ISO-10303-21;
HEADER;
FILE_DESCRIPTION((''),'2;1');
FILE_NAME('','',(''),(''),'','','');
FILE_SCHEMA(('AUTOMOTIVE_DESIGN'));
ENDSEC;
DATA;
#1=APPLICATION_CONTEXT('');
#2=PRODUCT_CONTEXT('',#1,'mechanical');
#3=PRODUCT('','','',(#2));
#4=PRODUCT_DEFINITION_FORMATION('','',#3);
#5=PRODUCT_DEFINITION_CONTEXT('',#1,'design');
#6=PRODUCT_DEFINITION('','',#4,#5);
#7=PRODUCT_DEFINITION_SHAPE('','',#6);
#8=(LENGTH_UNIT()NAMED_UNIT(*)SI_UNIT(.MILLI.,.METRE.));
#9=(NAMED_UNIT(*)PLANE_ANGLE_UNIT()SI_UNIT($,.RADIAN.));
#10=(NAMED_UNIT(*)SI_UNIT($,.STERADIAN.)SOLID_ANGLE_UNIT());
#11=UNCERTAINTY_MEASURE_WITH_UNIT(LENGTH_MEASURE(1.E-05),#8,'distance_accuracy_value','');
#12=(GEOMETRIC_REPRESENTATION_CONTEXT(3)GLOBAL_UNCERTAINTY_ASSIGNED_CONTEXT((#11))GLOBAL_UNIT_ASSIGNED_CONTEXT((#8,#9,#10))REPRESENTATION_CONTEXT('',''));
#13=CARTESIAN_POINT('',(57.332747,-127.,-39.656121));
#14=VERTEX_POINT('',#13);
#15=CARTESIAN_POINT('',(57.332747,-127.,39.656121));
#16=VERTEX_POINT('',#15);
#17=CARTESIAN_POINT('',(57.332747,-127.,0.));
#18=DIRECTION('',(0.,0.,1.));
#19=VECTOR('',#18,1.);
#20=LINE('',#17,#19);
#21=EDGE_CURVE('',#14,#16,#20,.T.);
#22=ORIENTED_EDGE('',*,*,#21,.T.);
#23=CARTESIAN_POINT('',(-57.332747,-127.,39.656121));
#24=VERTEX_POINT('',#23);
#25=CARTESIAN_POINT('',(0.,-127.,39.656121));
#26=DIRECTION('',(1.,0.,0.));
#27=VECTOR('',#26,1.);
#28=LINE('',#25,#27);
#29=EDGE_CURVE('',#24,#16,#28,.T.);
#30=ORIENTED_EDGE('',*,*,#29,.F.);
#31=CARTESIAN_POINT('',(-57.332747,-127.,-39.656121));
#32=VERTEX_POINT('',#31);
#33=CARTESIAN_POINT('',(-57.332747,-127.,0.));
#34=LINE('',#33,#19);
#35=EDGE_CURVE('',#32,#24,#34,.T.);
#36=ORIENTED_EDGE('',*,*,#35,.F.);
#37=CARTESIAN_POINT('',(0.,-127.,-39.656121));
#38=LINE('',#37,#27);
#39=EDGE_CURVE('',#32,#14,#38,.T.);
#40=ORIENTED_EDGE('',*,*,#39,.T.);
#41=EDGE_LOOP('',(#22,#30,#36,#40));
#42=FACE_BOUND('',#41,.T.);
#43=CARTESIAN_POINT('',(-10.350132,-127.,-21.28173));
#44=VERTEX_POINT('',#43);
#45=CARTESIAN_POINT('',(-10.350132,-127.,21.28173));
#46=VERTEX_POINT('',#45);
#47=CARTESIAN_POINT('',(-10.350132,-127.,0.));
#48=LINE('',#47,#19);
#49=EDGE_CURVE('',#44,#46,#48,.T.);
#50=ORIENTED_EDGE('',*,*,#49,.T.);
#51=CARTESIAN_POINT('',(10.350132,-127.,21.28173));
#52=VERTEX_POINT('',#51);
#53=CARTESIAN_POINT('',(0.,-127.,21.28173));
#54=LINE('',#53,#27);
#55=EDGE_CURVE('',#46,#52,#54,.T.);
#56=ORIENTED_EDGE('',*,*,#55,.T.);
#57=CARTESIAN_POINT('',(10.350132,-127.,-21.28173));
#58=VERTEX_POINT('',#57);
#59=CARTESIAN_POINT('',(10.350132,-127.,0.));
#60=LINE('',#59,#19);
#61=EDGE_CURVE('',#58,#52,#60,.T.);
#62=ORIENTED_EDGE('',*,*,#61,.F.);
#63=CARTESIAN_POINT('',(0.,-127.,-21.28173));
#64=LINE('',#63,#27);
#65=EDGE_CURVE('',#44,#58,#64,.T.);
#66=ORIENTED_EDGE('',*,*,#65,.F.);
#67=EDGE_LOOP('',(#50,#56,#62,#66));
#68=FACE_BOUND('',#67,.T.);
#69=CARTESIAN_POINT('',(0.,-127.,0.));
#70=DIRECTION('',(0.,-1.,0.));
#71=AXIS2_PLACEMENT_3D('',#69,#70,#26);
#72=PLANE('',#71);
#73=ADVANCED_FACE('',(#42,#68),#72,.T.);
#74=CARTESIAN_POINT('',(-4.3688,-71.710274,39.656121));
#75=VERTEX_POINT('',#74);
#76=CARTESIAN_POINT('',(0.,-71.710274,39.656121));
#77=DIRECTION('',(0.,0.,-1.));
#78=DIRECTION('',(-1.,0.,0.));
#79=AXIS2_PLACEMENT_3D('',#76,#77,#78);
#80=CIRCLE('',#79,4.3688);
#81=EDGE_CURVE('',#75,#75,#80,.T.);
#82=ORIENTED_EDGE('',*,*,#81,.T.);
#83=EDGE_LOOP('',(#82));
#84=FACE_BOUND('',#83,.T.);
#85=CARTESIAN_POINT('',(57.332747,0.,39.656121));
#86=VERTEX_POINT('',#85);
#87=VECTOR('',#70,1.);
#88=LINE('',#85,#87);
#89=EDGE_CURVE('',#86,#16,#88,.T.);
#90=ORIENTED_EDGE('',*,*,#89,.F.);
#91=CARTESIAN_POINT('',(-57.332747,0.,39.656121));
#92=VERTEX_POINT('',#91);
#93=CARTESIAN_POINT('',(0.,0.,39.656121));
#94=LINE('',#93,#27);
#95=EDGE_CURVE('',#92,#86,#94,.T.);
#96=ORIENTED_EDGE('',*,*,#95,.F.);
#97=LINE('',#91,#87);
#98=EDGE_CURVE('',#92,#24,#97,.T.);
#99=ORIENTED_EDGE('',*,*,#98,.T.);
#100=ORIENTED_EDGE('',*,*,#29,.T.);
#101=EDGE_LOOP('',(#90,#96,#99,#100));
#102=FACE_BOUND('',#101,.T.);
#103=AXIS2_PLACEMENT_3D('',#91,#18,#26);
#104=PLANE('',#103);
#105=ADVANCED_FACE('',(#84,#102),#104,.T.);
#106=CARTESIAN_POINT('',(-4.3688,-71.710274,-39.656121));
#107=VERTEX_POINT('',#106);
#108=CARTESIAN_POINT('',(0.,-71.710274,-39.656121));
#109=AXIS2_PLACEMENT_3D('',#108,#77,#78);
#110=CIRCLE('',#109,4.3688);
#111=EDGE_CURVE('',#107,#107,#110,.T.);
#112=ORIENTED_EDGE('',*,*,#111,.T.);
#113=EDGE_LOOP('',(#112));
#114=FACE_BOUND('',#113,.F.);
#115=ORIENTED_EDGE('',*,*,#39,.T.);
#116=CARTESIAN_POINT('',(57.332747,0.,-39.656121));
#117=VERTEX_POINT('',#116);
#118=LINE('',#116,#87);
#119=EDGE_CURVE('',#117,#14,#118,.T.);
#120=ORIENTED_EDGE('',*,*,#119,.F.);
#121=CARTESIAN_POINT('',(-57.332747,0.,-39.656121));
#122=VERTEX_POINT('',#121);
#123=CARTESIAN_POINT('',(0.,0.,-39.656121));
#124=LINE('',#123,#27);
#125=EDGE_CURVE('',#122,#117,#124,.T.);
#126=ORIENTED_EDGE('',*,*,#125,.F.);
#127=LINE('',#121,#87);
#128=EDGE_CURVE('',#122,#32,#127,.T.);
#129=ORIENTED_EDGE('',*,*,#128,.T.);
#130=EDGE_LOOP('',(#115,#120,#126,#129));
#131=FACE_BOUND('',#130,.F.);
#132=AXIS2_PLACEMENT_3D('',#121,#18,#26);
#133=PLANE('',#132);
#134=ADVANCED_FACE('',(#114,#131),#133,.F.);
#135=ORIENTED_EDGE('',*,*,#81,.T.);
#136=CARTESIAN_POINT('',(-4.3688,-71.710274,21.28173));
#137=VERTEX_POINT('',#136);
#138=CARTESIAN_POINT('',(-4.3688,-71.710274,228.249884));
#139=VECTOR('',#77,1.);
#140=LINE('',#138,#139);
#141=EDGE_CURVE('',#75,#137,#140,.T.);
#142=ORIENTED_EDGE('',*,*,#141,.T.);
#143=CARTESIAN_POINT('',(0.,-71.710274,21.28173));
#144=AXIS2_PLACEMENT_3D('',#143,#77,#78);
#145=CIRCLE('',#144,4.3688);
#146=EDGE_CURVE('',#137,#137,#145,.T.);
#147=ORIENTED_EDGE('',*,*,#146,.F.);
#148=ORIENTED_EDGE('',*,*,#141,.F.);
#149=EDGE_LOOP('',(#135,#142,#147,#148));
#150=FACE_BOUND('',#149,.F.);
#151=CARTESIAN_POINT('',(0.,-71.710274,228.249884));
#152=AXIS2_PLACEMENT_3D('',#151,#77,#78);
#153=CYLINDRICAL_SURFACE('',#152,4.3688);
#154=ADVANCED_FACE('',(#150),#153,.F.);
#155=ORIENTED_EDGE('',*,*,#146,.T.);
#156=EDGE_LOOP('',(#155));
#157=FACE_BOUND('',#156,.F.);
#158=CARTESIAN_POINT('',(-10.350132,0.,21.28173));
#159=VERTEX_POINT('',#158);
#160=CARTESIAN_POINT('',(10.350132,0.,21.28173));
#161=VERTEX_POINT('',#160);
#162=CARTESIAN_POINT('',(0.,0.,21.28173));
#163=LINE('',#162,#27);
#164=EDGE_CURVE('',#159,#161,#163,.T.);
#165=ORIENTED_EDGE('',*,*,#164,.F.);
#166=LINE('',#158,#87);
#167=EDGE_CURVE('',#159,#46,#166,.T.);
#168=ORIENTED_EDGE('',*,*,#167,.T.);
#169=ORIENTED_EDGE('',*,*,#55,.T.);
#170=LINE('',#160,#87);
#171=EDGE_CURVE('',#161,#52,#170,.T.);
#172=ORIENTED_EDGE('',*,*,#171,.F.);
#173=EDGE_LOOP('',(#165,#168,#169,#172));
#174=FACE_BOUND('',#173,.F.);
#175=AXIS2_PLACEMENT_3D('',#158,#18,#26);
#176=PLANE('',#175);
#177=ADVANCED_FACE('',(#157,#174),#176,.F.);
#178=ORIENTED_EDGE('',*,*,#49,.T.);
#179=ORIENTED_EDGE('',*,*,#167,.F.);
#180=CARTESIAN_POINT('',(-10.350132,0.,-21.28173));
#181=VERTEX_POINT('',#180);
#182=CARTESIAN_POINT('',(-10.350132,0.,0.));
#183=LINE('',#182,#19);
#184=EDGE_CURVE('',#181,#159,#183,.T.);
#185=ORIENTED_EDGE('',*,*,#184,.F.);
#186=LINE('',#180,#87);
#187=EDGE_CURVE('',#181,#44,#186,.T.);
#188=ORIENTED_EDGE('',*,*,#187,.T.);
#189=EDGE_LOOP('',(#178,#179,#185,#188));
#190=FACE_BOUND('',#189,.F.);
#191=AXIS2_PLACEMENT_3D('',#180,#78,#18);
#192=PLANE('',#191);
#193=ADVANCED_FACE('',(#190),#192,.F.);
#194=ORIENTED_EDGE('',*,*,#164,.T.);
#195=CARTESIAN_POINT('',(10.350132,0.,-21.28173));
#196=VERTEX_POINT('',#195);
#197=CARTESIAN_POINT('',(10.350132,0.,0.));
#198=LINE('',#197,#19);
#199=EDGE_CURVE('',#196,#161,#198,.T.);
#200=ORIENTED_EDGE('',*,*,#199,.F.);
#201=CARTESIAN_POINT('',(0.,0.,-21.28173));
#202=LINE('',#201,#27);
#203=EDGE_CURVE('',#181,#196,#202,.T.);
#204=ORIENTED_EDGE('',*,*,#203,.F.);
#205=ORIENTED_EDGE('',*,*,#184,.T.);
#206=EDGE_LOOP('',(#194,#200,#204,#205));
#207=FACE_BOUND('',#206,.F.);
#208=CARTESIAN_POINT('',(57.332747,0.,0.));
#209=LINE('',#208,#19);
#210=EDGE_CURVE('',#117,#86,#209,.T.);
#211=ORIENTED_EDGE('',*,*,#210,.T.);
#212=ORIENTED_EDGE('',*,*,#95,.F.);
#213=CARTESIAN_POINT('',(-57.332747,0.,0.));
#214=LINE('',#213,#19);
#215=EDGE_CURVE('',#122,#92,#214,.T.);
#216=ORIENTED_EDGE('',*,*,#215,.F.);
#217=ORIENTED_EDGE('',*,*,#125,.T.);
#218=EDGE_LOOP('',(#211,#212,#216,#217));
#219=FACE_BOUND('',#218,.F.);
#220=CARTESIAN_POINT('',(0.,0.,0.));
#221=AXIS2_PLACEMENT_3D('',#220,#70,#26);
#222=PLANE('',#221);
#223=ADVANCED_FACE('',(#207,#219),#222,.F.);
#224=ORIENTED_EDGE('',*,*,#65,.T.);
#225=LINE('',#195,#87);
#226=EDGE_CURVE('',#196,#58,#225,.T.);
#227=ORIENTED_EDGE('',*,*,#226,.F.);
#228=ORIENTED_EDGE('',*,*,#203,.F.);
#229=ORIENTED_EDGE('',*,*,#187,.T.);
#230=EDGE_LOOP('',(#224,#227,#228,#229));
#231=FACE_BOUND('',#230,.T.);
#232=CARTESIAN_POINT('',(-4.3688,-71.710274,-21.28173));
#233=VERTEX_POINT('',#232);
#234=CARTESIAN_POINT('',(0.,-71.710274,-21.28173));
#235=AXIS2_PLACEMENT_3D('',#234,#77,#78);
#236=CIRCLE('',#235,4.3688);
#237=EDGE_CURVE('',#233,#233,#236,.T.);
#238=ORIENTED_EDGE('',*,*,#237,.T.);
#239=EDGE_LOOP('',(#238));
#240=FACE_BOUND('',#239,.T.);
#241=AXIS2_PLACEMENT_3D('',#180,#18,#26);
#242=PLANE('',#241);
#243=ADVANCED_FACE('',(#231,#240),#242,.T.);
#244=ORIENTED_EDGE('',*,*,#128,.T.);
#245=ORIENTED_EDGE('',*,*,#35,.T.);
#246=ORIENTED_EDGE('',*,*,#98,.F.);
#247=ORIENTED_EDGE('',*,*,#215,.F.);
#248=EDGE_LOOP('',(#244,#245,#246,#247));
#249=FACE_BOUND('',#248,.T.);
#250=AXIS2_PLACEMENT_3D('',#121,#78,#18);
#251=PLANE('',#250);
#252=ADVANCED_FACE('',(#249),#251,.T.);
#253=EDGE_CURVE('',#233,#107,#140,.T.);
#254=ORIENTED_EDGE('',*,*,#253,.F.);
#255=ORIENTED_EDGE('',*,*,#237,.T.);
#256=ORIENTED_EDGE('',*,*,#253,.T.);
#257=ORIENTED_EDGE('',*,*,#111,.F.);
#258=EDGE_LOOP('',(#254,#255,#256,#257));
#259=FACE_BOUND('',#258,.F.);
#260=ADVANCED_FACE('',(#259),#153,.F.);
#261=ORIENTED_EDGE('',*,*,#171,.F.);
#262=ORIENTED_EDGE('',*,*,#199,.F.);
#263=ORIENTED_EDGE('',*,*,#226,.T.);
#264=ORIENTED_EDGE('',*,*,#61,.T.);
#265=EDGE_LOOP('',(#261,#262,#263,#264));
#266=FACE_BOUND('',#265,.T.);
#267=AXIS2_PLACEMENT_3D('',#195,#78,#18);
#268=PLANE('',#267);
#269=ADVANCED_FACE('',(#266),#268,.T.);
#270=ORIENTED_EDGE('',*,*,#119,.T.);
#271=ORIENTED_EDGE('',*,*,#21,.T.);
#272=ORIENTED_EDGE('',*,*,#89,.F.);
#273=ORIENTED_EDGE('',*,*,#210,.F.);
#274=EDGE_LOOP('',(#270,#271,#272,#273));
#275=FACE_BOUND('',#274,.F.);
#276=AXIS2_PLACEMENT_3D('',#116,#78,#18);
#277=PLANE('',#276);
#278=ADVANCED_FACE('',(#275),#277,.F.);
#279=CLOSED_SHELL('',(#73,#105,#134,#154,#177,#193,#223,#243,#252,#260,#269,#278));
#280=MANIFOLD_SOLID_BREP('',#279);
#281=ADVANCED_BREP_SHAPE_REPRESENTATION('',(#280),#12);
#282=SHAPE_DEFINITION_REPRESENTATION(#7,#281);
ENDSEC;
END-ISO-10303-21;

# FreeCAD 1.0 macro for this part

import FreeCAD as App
import Part
import Sketcher

V = App.Vector
Q = App.Units.Quantity


def add_polygon(sketch, points):
    """Adds a closed chain of lines whose ends are joined by coincident constraints."""
    first, n = sketch.GeometryCount, len(points)
    for a, b in zip(points, points[1:] + points[:1]):
        sketch.addGeometry(Part.LineSegment(App.Vector(*a, 0), App.Vector(*b, 0)), False)
    for i in range(n):
        sketch.addConstraint(Sketcher.Constraint("Coincident", first + i, 2, first + (i + 1) % n, 1))

doc = App.newDocument("Part")
body = doc.addObject("PartDesign::Body", "Body")

# Sketch on XZ plane
sketch1 = body.newObject("Sketcher::SketchObject", "Sketch")
sketch1.AttachmentSupport = (doc.getObject("XZ_Plane"), [""])
sketch1.MapMode = "FlatFace"
add_polygon(sketch1, [(-57.332747, 39.656121), (-57.332747, -39.656121), (57.332747, -39.656121), (57.332747, 39.656121)])  # lines 0-3
add_polygon(sketch1, [(10.350132, -21.28173), (-10.350132, -21.28173), (-10.350132, 21.28173), (10.350132, 21.28173)])  # lines 4-7
sketch1.addConstraint([
    Sketcher.Constraint("Vertical", 0),
    Sketcher.Constraint("Horizontal", 1),
    Sketcher.Constraint("Vertical", 2),
    Sketcher.Constraint("Horizontal", 3),
    Sketcher.Constraint("Horizontal", 4),
    Sketcher.Constraint("Vertical", 5),
    Sketcher.Constraint("Horizontal", 6),
    Sketcher.Constraint("Vertical", 7),
    Sketcher.Constraint("Symmetric", 0, 2, 2, 2, -1, 1),
    Sketcher.Constraint("Symmetric", 4, 2, 6, 2, -1, 1),
    Sketcher.Constraint("DistanceY", 5, 1, 5, 2, 42.563461),
    Sketcher.Constraint("DistanceX", 1, 1, 1, 2, 114.665493),
    Sketcher.Constraint("DistanceX", 4, 2, 4, 1, 20.700265),
    Sketcher.Constraint("DistanceY", 0, 2, 0, 1, 79.312243),
])
pad1 = body.newObject("PartDesign::Pad", "Pad")
pad1.Profile = sketch1
pad1.Length = Q("5 in")

# Sketch on XY plane
sketch2 = body.newObject("Sketcher::SketchObject", "Sketch001")
sketch2.AttachmentSupport = (doc.getObject("XY_Plane"), [""])
sketch2.MapMode = "FlatFace"
sketch2.AttachmentOffset = App.Placement(V(0, 0, 39.656121), App.Rotation())
sketch2.addGeometry(Part.Circle(V(0, -71.710274, 0), V(0, 0, 1), 4.3688), False)
sketch2.addConstraint([
    Sketcher.Constraint("PointOnObject", 0, 3, -2),
    Sketcher.Constraint("Diameter", 0, Q("0.344 in")),
    Sketcher.Constraint("DistanceY", 0, 3, -1, 1, 71.710274),
])
doc.recompute()
hole = body.newObject("PartDesign::Hole", "Hole")
hole.Profile = sketch2
hole.ThreadType = "None"
hole.Diameter = Q("0.344 in")
hole.DepthType = "ThroughAll"

doc.recompute()
